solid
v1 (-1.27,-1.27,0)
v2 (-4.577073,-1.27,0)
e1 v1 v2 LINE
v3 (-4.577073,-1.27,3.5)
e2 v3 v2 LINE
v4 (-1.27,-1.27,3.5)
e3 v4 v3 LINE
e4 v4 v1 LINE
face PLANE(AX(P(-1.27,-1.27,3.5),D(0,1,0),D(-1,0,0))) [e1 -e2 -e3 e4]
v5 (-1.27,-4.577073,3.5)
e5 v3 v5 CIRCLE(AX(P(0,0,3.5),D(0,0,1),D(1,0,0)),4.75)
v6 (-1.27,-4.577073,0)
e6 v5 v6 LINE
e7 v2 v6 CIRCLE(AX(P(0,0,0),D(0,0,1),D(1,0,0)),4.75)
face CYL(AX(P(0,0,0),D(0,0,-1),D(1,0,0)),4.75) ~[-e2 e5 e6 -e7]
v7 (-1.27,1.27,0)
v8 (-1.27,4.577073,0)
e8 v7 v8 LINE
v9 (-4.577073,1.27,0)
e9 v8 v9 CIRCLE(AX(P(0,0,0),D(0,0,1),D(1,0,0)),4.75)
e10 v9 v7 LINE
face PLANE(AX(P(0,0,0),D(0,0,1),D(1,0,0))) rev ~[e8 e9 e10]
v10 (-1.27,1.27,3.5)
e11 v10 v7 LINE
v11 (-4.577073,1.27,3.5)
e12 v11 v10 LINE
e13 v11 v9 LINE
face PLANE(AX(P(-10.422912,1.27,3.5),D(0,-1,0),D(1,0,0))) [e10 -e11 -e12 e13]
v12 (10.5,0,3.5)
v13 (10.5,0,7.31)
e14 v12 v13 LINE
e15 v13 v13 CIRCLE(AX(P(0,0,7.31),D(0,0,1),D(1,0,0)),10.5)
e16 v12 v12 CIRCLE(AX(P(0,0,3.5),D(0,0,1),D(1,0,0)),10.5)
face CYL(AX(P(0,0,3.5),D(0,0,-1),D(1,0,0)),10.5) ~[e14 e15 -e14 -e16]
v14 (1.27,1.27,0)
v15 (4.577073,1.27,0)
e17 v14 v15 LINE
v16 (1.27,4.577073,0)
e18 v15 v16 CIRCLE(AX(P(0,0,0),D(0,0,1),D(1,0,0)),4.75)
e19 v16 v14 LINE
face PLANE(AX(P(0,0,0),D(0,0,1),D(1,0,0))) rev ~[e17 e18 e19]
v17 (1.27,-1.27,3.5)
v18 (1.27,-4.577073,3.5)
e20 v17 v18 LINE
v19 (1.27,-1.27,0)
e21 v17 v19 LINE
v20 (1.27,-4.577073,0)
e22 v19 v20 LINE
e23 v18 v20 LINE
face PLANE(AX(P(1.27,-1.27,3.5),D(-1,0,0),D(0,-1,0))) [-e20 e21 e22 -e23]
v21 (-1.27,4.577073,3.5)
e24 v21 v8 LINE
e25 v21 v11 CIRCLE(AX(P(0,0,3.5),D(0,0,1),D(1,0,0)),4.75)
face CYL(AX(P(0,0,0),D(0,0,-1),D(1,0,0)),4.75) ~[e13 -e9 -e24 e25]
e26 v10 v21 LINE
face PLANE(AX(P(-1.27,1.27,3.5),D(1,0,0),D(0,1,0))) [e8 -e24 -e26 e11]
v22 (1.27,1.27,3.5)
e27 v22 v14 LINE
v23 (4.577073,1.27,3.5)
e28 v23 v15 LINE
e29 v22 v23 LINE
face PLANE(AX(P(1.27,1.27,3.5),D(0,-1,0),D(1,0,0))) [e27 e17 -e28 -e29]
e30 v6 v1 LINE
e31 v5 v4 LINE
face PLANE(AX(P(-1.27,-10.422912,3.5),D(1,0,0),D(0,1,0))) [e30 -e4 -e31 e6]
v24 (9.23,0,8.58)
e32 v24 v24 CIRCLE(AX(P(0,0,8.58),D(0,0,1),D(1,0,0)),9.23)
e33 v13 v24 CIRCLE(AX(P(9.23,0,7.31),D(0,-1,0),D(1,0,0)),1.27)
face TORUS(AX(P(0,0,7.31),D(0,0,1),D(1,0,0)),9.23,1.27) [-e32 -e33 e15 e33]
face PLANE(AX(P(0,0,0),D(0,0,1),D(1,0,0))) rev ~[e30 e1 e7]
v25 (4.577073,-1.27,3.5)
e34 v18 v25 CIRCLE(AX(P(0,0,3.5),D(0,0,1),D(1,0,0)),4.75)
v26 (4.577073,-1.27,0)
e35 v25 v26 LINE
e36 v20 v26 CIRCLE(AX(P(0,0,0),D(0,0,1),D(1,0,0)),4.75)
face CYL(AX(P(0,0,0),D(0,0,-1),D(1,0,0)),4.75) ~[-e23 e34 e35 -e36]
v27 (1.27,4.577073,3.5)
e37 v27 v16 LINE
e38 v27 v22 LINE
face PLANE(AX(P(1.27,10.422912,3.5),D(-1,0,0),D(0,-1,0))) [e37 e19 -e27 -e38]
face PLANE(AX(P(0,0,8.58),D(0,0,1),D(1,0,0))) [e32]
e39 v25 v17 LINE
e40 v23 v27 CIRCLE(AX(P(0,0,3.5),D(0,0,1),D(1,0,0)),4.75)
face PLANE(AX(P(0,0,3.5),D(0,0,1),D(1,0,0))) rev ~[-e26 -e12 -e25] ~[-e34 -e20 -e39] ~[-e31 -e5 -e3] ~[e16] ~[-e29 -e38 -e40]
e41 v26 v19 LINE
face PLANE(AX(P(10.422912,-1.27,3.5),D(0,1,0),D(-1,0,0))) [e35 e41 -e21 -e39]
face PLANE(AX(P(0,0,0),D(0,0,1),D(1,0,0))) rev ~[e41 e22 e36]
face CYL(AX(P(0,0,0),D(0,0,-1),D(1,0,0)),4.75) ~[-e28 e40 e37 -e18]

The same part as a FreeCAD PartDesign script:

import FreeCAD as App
import Part
import Sketcher

V = App.Vector
Q = App.Units.Quantity


def edges_at(feature, points):
    """Names of the edges that pass closest to the given points."""
    edges = feature.Shape.Edges
    near = lambda p: min(range(len(edges)), key=lambda i: edges[i].distToShape(Part.Vertex(*p))[0])
    return sorted({f"Edge{near(p) + 1}" for p in points})


def add_polygon(sketch, points):
    """Adds a closed chain of lines whose ends are joined by coincident constraints."""
    first, n = sketch.GeometryCount, len(points)
    for a, b in zip(points, points[1:] + points[:1]):
        sketch.addGeometry(Part.LineSegment(App.Vector(*a, 0), App.Vector(*b, 0)), False)
    for i in range(n):
        sketch.addConstraint(Sketcher.Constraint("Coincident", first + i, 2, first + (i + 1) % n, 1))

doc = App.newDocument("Part")
body = doc.addObject("PartDesign::Body", "Body")

sketch1 = body.newObject("Sketcher::SketchObject", "Sketch")
sketch1.AttachmentSupport = (doc.getObject("XY_Plane"), [""])
sketch1.MapMode = "FlatFace"
sketch1.addGeometry(Part.Circle(V(0, 0, 0), V(0, 0, 1), 4.8), False)
sketch1.addConstraint(Sketcher.Constraint("Coincident", 0, 3, -1, 1))
sketch1.addConstraint(Sketcher.Constraint("Diameter", 0, Q("9.5 mm")))
pad1 = body.newObject("PartDesign::Pad", "Pad")
pad1.Profile = sketch1
pad1.Length = 3.5

sketch2 = body.newObject("Sketcher::SketchObject", "Sketch001")
sketch2.AttachmentSupport = (doc.getObject("XY_Plane"), [""])
sketch2.MapMode = "FlatFace"
sketch2.AttachmentOffset = App.Placement(V(0, 0, 3.5), App.Rotation())
sketch2.addGeometry(Part.Circle(V(0, 0, 0), V(0, 0, 1), 10), False)
sketch2.addConstraint(Sketcher.Constraint("Coincident", 0, 3, -1, 1))
sketch2.addConstraint(Sketcher.Constraint("Diameter", 0, Q("21 mm")))
pad2 = body.newObject("PartDesign::Pad", "Pad001")
pad2.Profile = sketch2
pad2.Length = Q("0.2 in")
doc.recompute()

fillet = body.newObject("PartDesign::Fillet", "Fillet")
fillet.Base = (pad2, edges_at(pad2, [(-10.5, 0, 8.58)]))
fillet.Radius = Q("0.05 in")

sketch3 = body.newObject("Sketcher::SketchObject", "Sketch002")
sketch3.AttachmentSupport = (doc.getObject("XY_Plane"), [""])
sketch3.MapMode = "FlatFace"
sketch3.AttachmentOffset = App.Placement(V(0, 0, 3.5), App.Rotation())
add_polygon(sketch3, [(10.4, 1.3), (10.4, -1.3), (1.3, -1.3), (1.3, -10.4), (-1.3, -10.4), (-1.3, -1.3), (-10.4, -1.3), (-10.4, 1.3), (-1.3, 1.3), (-1.3, 10.4), (1.3, 10.4), (1.3, 1.3)])
sketch3.addConstraint(Sketcher.Constraint("Vertical", 0))
sketch3.addConstraint(Sketcher.Constraint("Horizontal", 1))
sketch3.addConstraint(Sketcher.Constraint("Vertical", 2))
sketch3.addConstraint(Sketcher.Constraint("Horizontal", 3))
sketch3.addConstraint(Sketcher.Constraint("Vertical", 4))
sketch3.addConstraint(Sketcher.Constraint("Horizontal", 5))
sketch3.addConstraint(Sketcher.Constraint("Vertical", 6))
sketch3.addConstraint(Sketcher.Constraint("Horizontal", 7))
sketch3.addConstraint(Sketcher.Constraint("Vertical", 8))
sketch3.addConstraint(Sketcher.Constraint("Horizontal", 9))
sketch3.addConstraint(Sketcher.Constraint("Vertical", 10))
sketch3.addConstraint(Sketcher.Constraint("Horizontal", 11))
sketch3.addConstraint(Sketcher.Constraint("Symmetric", 0, 2, 6, 2, -1, 1))
sketch3.addConstraint(Sketcher.Constraint("Symmetric", 2, 2, 8, 2, -1, 1))
sketch3.addConstraint(Sketcher.Constraint("Symmetric", 4, 2, 10, 2, -1, 1))
sketch3.addConstraint(Sketcher.Constraint("Symmetric", 1, 2, 4, 2, -2))
sketch3.addConstraint(Sketcher.Constraint("Equal", 9, 0))
sketch3.addConstraint(Sketcher.Constraint("Equal", 11, 2))
sketch3.addConstraint(Sketcher.Constraint("DistanceX", 3, 2, 3, 1, Q("0.1 in")))
sketch3.addConstraint(Sketcher.Constraint("DistanceX", 1, 2, 1, 1, Q("9.152912 mm")))
pocket1 = body.newObject("PartDesign::Pocket", "Pocket")
pocket1.Profile = sketch3
pocket1.Length = Q("1 in")

doc.recompute()
